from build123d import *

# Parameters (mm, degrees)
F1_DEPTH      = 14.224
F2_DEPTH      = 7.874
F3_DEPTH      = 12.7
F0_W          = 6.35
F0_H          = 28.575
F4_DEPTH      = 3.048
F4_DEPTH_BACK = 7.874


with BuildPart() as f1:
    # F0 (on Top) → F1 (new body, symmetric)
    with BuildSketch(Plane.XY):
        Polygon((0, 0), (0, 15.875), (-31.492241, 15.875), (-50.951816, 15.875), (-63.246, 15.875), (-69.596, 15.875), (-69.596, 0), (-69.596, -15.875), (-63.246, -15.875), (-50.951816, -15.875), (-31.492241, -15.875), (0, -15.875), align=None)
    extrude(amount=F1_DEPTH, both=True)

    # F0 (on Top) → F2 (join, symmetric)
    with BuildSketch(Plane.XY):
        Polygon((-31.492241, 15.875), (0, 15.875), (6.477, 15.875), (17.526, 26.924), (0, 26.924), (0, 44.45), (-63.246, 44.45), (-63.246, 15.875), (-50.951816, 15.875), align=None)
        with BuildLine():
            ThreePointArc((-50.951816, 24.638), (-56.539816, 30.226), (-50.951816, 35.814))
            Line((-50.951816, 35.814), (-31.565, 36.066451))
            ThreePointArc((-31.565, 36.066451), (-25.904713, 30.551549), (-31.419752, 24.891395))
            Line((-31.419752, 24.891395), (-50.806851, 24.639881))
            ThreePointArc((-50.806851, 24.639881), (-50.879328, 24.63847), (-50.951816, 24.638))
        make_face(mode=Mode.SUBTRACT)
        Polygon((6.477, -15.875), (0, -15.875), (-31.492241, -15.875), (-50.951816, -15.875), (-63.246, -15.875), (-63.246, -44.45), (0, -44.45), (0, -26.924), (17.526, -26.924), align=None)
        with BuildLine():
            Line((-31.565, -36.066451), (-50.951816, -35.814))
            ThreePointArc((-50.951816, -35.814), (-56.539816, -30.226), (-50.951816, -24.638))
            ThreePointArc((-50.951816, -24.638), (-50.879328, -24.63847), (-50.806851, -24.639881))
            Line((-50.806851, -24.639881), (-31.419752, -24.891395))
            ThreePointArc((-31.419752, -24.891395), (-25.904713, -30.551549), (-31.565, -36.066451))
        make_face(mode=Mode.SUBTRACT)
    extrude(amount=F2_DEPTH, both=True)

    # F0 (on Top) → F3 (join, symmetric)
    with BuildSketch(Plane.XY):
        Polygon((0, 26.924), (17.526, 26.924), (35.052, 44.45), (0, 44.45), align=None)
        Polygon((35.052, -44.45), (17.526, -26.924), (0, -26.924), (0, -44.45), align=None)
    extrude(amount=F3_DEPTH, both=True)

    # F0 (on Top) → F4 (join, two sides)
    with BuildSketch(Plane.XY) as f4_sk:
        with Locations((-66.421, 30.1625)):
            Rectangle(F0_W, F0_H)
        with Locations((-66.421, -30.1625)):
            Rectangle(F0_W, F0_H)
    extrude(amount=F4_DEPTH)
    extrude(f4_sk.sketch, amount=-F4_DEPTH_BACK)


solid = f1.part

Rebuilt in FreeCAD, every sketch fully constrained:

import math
import FreeCAD as App
import Part
import Sketcher
from FreeCAD import Vector
Q = App.Units.Quantity


def add_polygon(sketch, points):
    """Adds a closed chain of lines whose ends are joined by coincident constraints."""
    first, n = sketch.GeometryCount, len(points)
    for a, b in zip(points, points[1:] + points[:1]):
        sketch.addGeometry(Part.LineSegment(App.Vector(*a, 0), App.Vector(*b, 0)), False)
    for i in range(n):
        sketch.addConstraint(Sketcher.Constraint("Coincident", first + i, 2, first + (i + 1) % n, 1))

doc = App.newDocument("Part")
body = doc.addObject("PartDesign::Body", "Body")

sketch1 = body.newObject("Sketcher::SketchObject", "Sketch")
sketch1.AttachmentSupport = (doc.getObject("XY_Plane"), [""])
sketch1.MapMode = "FlatFace"
add_polygon(sketch1, [(0, 16), (-70, 16), (-70, -16), (0, -16)])
sketch1.addConstraint(Sketcher.Constraint("Horizontal", 0))
sketch1.addConstraint(Sketcher.Constraint("Vertical", 1))
sketch1.addConstraint(Sketcher.Constraint("Horizontal", 2))
sketch1.addConstraint(Sketcher.Constraint("Vertical", 3))
sketch1.addConstraint(Sketcher.Constraint("Symmetric", 2, 2, 3, 2, -1, 1))
sketch1.addConstraint(Sketcher.Constraint("DistanceX", 0, 2, 0, 1, Q("2.74 in")))
sketch1.addConstraint(Sketcher.Constraint("DistanceY", 1, 2, 1, 1, Q("1.25 in")))
pad1 = body.newObject("PartDesign::Pad", "Pad")
pad1.Profile = sketch1
pad1.Length = Q("1.12 in")
pad1.Midplane = True

sketch2 = body.newObject("Sketcher::SketchObject", "Sketch001")
sketch2.AttachmentSupport = (doc.getObject("XY_Plane"), [""])
sketch2.MapMode = "FlatFace"
add_polygon(sketch2, [(6.477, 15.875), (17.526, 26.924), (0, 26.924), (0, 44.45), (-63.246, 44.45), (-63.246, 15.875)])
sketch2.addGeometry(Part.ArcOfCircle(Part.Circle(Vector(-50.951776, 30.221915, 0), Vector(0, 0, 1), 5.583915), math.radians(-90.000414), math.radians(-88.512781)), False)
sketch2.addGeometry(Part.ArcOfCircle(Part.Circle(Vector(-50.951816, 30.226, 0), Vector(0, 0, 1), 5.588), math.radians(90), math.radians(270)), False)
sketch2.addGeometry(Part.LineSegment(Vector(-50.951816, 35.814, 0), Vector(-31.565, 36.066451, 0)), False)
sketch2.addGeometry(Part.ArcOfCircle(Part.Circle(Vector(-31.492241, 30.478925, 0), Vector(0, 0, 1), 5.588), math.radians(-89.256723), math.radians(90.746045)), False)
sketch2.addGeometry(Part.LineSegment(Vector(-31.419752, 24.891395, 0), Vector(-50.806851, 24.639881, 0)), False)
add_polygon(sketch2, [(6.477, -15.875), (-63.246, -15.875), (-63.246, -44.45), (0, -44.45), (0, -26.924), (17.526, -26.924)])
sketch2.addGeometry(Part.ArcOfCircle(Part.Circle(Vector(-31.492241, -30.478925, 0), Vector(0, 0, 1), 5.588), math.radians(-90.746045), math.radians(89.256723)), False)
sketch2.addGeometry(Part.LineSegment(Vector(-31.565, -36.066451, 0), Vector(-50.951816, -35.814, 0)), False)
sketch2.addGeometry(Part.ArcOfCircle(Part.Circle(Vector(-50.951816, -30.226, 0), Vector(0, 0, 1), 5.588), math.radians(90), math.radians(270)), False)
sketch2.addGeometry(Part.ArcOfCircle(Part.Circle(Vector(-50.951776, -30.221915, 0), Vector(0, 0, 1), 5.583915), math.radians(88.512781), math.radians(90.000414)), False)
sketch2.addGeometry(Part.LineSegment(Vector(-50.806851, -24.639881, 0), Vector(-31.419752, -24.891395, 0)), False)
sketch2.addConstraint(Sketcher.Constraint("Coincident", 6, 1, 7, 2))
sketch2.addConstraint(Sketcher.Constraint("Coincident", 7, 1, 8, 1))
sketch2.addConstraint(Sketcher.Constraint("Coincident", 8, 2, 9, 2))
sketch2.addConstraint(Sketcher.Constraint("Coincident", 9, 1, 10, 1))
sketch2.addConstraint(Sketcher.Constraint("Coincident", 10, 2, 6, 2))
sketch2.addConstraint(Sketcher.Constraint("Coincident", 17, 1, 18, 1))
sketch2.addConstraint(Sketcher.Constraint("Coincident", 18, 2, 19, 2))
sketch2.addConstraint(Sketcher.Constraint("Coincident", 19, 1, 20, 2))
sketch2.addConstraint(Sketcher.Constraint("Coincident", 20, 1, 21, 1))
sketch2.addConstraint(Sketcher.Constraint("Coincident", 21, 2, 17, 2))
sketch2.addConstraint(Sketcher.Constraint("Horizontal", 1))
sketch2.addConstraint(Sketcher.Constraint("Vertical", 2))
sketch2.addConstraint(Sketcher.Constraint("Horizontal", 3))
sketch2.addConstraint(Sketcher.Constraint("Vertical", 4))
sketch2.addConstraint(Sketcher.Constraint("Horizontal", 5))
sketch2.addConstraint(Sketcher.Constraint("Horizontal", 11))
sketch2.addConstraint(Sketcher.Constraint("Vertical", 12))
sketch2.addConstraint(Sketcher.Constraint("Horizontal", 13))
sketch2.addConstraint(Sketcher.Constraint("Vertical", 14))
sketch2.addConstraint(Sketcher.Constraint("Horizontal", 15))
sketch2.addConstraint(Sketcher.Constraint("PointOnObject", 1, 2, -2))
sketch2.addConstraint(Sketcher.Constraint("PointOnObject", 13, 2, -2))
sketch2.addConstraint(Sketcher.Constraint("Radius", 7, Q("0.22 in")))
sketch2.addConstraint(Sketcher.Constraint("Radius", 9, Q("0.22 in")))
sketch2.addConstraint(Sketcher.Constraint("Radius", 17, Q("0.22 in")))
sketch2.addConstraint(Sketcher.Constraint("Radius", 19, Q("0.22 in")))
sketch2.addConstraint(Sketcher.Constraint("DistanceX", 1, 2, 1, 1, Q("0.69 in")))
sketch2.addConstraint(Sketcher.Constraint("DistanceX", 3, 2, 3, 1, Q("2.49 in")))
sketch2.addConstraint(Sketcher.Constraint("DistanceX", 13, 1, 13, 2, Q("2.49 in")))
sketch2.addConstraint(Sketcher.Constraint("DistanceX", 15, 1, 15, 2, Q("0.69 in")))
sketch2.addConstraint(Sketcher.Constraint("DistanceY", 2, 1, 2, 2, Q("0.69 in")))
sketch2.addConstraint(Sketcher.Constraint("DistanceY", 14, 1, 14, 2, Q("0.69 in")))
sketch2.addConstraint(Sketcher.Constraint("DistanceX", 5, 1, 5, 2, Q("2.745 in")))
sketch2.addConstraint(Sketcher.Constraint("DistanceX", 11, 2, 11, 1, Q("2.745 in")))
sketch2.addConstraint(Sketcher.Constraint("DistanceY", 4, 2, 4, 1, Q("1.125 in")))
sketch2.addConstraint(Sketcher.Constraint("DistanceY", 12, 2, 12, 1, Q("1.125 in")))
sketch2.addConstraint(Sketcher.Constraint("DistanceY", -1, 1, 7, 3, Q("1.19 in")))
sketch2.addConstraint(Sketcher.Constraint("DistanceY", 19, 3, -1, 1, Q("1.19 in")))
sketch2.addConstraint(Sketcher.Constraint("DistanceY", -1, 1, 0, 2, Q("1.06 in")))
sketch2.addConstraint(Sketcher.Constraint("DistanceY", 12, 2, -1, 1, Q("1.75 in")))
sketch2.addConstraint(Sketcher.Constraint("Radius", 6, Q("5.583915 mm")))
sketch2.addConstraint(Sketcher.Constraint("Radius", 20, Q("5.583915 mm")))
sketch2.addConstraint(Sketcher.Constraint("DistanceY", 6, 3, 8, 2, Q("0.2300998 in")))
sketch2.addConstraint(Sketcher.Constraint("DistanceY", 17, 1, 20, 3, Q("0.2300998 in")))
sketch2.addConstraint(Sketcher.Constraint("DistanceX", 8, 2, -1, 1, Q("31.565 mm")))
sketch2.addConstraint(Sketcher.Constraint("DistanceX", 17, 1, -1, 1, Q("31.565 mm")))
sketch2.addConstraint(Sketcher.Constraint("DistanceX", 20, 1, 21, 2, Q("19.387099 mm")))
sketch2.addConstraint(Sketcher.Constraint("Distance", 8, Q("19.38846 mm")))
sketch2.addConstraint(Sketcher.Constraint("Distance", 10, Q("19.38873 mm")))
sketch2.addConstraint(Sketcher.Constraint("Distance", 18, Q("19.38846 mm")))
sketch2.addConstraint(Sketcher.Constraint("DistanceX", 9, 3, -1, 1, Q("31.492241 mm")))
sketch2.addConstraint(Sketcher.Constraint("DistanceX", 17, 3, -1, 1, Q("31.492241 mm")))
sketch2.addConstraint(Sketcher.Constraint("DistanceX", 9, 1, -1, 1, Q("31.419752 mm")))
sketch2.addConstraint(Sketcher.Constraint("DistanceY", -1, 1, 10, 2, Q("24.639881 mm")))
sketch2.addConstraint(Sketcher.Constraint("DistanceX", 20, 1, -1, 1, Q("50.806851 mm")))
sketch2.addConstraint(Sketcher.Constraint("DistanceY", 20, 1, -1, 1, Q("24.639881 mm")))
sketch2.addConstraint(Sketcher.Constraint("DistanceX", 7, 3, -1, 1, Q("50.951816 mm")))
sketch2.addConstraint(Sketcher.Constraint("DistanceX", 19, 3, -1, 1, Q("50.951816 mm")))
sketch2.addConstraint(Sketcher.Constraint("DistanceX", 6, 1, -1, 1, Q("50.951816 mm")))
sketch2.addConstraint(Sketcher.Constraint("DistanceX", 19, 1, -1, 1, Q("50.951816 mm")))
pad2 = body.newObject("PartDesign::Pad", "Pad001")
pad2.Profile = sketch2
pad2.Length = Q("0.62 in")
pad2.Midplane = True

sketch3 = body.newObject("Sketcher::SketchObject", "Sketch002")
sketch3.AttachmentSupport = (doc.getObject("XY_Plane"), [""])
sketch3.MapMode = "FlatFace"
add_polygon(sketch3, [(0, 27), (18, 27), (35, 44), (0, 44)])
add_polygon(sketch3, [(35, -44), (18, -27), (0, -27), (0, -44)])
sketch3.addConstraint(Sketcher.Constraint("Horizontal", 0))
sketch3.addConstraint(Sketcher.Constraint("Horizontal", 2))
sketch3.addConstraint(Sketcher.Constraint("Vertical", 3))
sketch3.addConstraint(Sketcher.Constraint("Horizontal", 5))
sketch3.addConstraint(Sketcher.Constraint("Vertical", 6))
sketch3.addConstraint(Sketcher.Constraint("Horizontal", 7))
sketch3.addConstraint(Sketcher.Constraint("Symmetric", 3, 2, 5, 2, -1, 1))
sketch3.addConstraint(Sketcher.Constraint("Symmetric", 2, 2, 6, 2, -1))
sketch3.addConstraint(Sketcher.Constraint("Perpendicular", 1, 4))
sketch3.addConstraint(Sketcher.Constraint("Vertical", 0, 2, 4, 2))
sketch3.addConstraint(Sketcher.Constraint("Vertical", 1, 2, 7, 2))
sketch3.addConstraint(Sketcher.Constraint("Equal", 5, 3))
sketch3.addConstraint(Sketcher.Constraint("DistanceX", 0, 1, 0, 2, Q("0.69 in")))
sketch3.addConstraint(Sketcher.Constraint("DistanceY", 6, 2, 2, 2, Q("3.5 in")))
pad3 = body.newObject("PartDesign::Pad", "Pad002")
pad3.Profile = sketch3
pad3.Length = Q("1 in")
pad3.Midplane = True

sketch4 = body.newObject("Sketcher::SketchObject", "Sketch003")
sketch4.AttachmentSupport = (doc.getObject("XY_Plane"), [""])
sketch4.MapMode = "FlatFace"
add_polygon(sketch4, [(-70, 44), (-70, 16), (-63, 16), (-63, 44)])
add_polygon(sketch4, [(-70, -16), (-70, -44), (-63, -44), (-63, -16)])
sketch4.addConstraint(Sketcher.Constraint("Vertical", 0))
sketch4.addConstraint(Sketcher.Constraint("Horizontal", 1))
sketch4.addConstraint(Sketcher.Constraint("Vertical", 2))
sketch4.addConstraint(Sketcher.Constraint("Horizontal", 3))
sketch4.addConstraint(Sketcher.Constraint("Vertical", 4))
sketch4.addConstraint(Sketcher.Constraint("Horizontal", 5))
sketch4.addConstraint(Sketcher.Constraint("Vertical", 6))
sketch4.addConstraint(Sketcher.Constraint("Horizontal", 7))
sketch4.addConstraint(Sketcher.Constraint("Symmetric", 3, 2, 4, 2, -1))
sketch4.addConstraint(Sketcher.Constraint("Symmetric", 1, 2, 6, 2, -1))
sketch4.addConstraint(Sketcher.Constraint("DistanceX", 1, 1, 1, 2, Q("0.25 in")))
sketch4.addConstraint(Sketcher.Constraint("DistanceY", 4, 2, 3, 2, Q("3.5 in")))
sketch4.addConstraint(Sketcher.Constraint("DistanceY", 0, 2, 0, 1, Q("1.125 in")))
sketch4.addConstraint(Sketcher.Constraint("DistanceX", 0, 2, -1, 1, Q("2.74 in")))
pad4 = body.newObject("PartDesign::Pad", "Pad003")
pad4.Profile = sketch4
pad4.Type = "TwoLengths"
pad4.Length = Q("0.12 in")
pad4.Length2 = Q("0.31 in")

doc.recompute()
